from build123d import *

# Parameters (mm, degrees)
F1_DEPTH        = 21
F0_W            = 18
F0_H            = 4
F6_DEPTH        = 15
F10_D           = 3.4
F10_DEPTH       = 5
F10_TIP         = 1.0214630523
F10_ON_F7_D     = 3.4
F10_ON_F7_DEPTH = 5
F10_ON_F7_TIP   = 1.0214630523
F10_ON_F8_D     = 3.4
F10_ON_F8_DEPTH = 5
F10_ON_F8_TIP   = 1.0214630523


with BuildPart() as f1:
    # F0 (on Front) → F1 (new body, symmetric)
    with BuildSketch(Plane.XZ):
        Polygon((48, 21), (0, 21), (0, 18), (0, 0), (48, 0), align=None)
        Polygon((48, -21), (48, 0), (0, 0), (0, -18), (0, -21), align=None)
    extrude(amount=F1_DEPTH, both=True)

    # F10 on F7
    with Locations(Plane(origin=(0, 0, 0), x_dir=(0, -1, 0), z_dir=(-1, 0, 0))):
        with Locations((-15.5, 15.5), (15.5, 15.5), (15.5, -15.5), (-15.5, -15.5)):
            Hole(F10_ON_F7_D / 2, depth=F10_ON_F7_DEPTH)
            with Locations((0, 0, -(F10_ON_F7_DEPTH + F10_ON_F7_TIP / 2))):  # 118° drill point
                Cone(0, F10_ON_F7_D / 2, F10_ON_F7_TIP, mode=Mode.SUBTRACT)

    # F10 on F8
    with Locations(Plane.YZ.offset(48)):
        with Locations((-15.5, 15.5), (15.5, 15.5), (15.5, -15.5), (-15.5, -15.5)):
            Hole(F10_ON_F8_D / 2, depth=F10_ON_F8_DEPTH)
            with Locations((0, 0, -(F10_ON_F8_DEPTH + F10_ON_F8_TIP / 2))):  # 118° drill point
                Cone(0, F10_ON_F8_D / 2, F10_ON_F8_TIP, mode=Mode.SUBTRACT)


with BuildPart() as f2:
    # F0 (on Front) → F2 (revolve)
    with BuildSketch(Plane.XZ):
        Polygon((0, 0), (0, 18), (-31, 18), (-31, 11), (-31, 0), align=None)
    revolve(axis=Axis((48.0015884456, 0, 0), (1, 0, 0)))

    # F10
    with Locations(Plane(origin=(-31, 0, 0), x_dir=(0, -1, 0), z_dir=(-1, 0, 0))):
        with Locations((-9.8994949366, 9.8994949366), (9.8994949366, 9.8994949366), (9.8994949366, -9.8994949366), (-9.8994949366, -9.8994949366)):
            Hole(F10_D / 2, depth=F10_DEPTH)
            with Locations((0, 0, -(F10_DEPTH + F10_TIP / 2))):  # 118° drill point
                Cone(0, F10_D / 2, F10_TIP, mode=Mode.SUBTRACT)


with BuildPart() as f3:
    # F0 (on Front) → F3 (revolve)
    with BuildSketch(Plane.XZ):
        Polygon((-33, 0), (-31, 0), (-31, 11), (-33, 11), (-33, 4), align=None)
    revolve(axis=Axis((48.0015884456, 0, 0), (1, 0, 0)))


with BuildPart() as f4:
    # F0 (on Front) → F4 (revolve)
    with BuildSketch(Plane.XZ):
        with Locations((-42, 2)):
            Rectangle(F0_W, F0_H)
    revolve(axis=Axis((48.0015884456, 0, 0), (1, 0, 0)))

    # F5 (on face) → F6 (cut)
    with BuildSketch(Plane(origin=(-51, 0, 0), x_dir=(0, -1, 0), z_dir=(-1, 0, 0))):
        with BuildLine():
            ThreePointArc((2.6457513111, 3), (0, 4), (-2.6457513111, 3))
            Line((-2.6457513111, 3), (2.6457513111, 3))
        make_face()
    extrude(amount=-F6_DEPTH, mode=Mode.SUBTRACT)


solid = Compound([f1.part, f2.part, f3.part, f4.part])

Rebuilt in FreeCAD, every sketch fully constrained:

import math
import FreeCAD as App
import Part
import Sketcher
from FreeCAD import Vector
Q = App.Units.Quantity


def add_polygon(sketch, points):
    """Adds a closed chain of lines whose ends are joined by coincident constraints."""
    first, n = sketch.GeometryCount, len(points)
    for a, b in zip(points, points[1:] + points[:1]):
        sketch.addGeometry(Part.LineSegment(App.Vector(*a, 0), App.Vector(*b, 0)), False)
    for i in range(n):
        sketch.addConstraint(Sketcher.Constraint("Coincident", first + i, 2, first + (i + 1) % n, 1))

doc = App.newDocument("Part")
body = doc.addObject("PartDesign::Body", "Body")

sketch1 = body.newObject("Sketcher::SketchObject", "Sketch")
sketch1.AttachmentSupport = (doc.getObject("XZ_Plane"), [""])
sketch1.MapMode = "FlatFace"
add_polygon(sketch1, [(48, 21), (0, 21), (0, -21), (48, -21)])
sketch1.addConstraint(Sketcher.Constraint("Horizontal", 0))
sketch1.addConstraint(Sketcher.Constraint("Vertical", 1))
sketch1.addConstraint(Sketcher.Constraint("Horizontal", 2))
sketch1.addConstraint(Sketcher.Constraint("Vertical", 3))
sketch1.addConstraint(Sketcher.Constraint("Symmetric", 0, 2, 1, 2, -1, 1))
sketch1.addConstraint(Sketcher.Constraint("DistanceX", 0, 2, 0, 1, Q("48 mm")))
sketch1.addConstraint(Sketcher.Constraint("DistanceY", 1, 2, 1, 1, Q("42 mm")))
pad1 = body.newObject("PartDesign::Pad", "Pad")
pad1.Profile = sketch1
pad1.Length = 42
pad1.Midplane = True

sketch2 = body.newObject("Sketcher::SketchObject", "Sketch001")
sketch2.AttachmentSupport = (doc.getObject("YZ_Plane"), [""])
sketch2.MapMode = "FlatFace"
sketch2.addGeometry(Part.Circle(Vector(15.5, 15.5, 0), Vector(0, 0, 1), 1.7), False)
sketch2.addGeometry(Part.Circle(Vector(-15.5, 15.5, 0), Vector(0, 0, 1), 1.7), False)
sketch2.addGeometry(Part.Circle(Vector(-15.5, -15.5, 0), Vector(0, 0, 1), 1.7), False)
sketch2.addGeometry(Part.Circle(Vector(15.5, -15.5, 0), Vector(0, 0, 1), 1.7), False)
sketch2.addConstraint(Sketcher.Constraint("Equal", 0, 1))
sketch2.addConstraint(Sketcher.Constraint("Equal", 1, 2))
sketch2.addConstraint(Sketcher.Constraint("Equal", 2, 3))
sketch2.addConstraint(Sketcher.Constraint("Symmetric", 0, 3, 2, 3, -1, 1))
sketch2.addConstraint(Sketcher.Constraint("Symmetric", 1, 3, 3, 3, -1, 1))
sketch2.addConstraint(Sketcher.Constraint("Symmetric", 0, 3, 1, 3, -2))
sketch2.addConstraint(Sketcher.Constraint("Diameter", 0, Q("3.4 mm")))
sketch2.addConstraint(Sketcher.Constraint("DistanceX", 1, 3, 0, 3, Q("31 mm")))
sketch2.addConstraint(Sketcher.Constraint("DistanceY", 2, 3, 1, 3, Q("31 mm")))
doc.recompute()
hole = body.newObject("PartDesign::Hole", "Hole")
hole.Profile = sketch2
hole.ThreadType = "None"
hole.Diameter = 3.4
hole.DepthType = "Dimension"
hole.Depth = 5
hole.DrillPoint = "Angled"
hole.DrillPointAngle = 118
hole.Reversed = True

sketch3 = body.newObject("Sketcher::SketchObject", "Sketch002")
sketch3.AttachmentSupport = (doc.getObject("YZ_Plane"), [""])
sketch3.MapMode = "FlatFace"
sketch3.AttachmentOffset = App.Placement(Vector(0, 0, 48), App.Rotation())
sketch3.addGeometry(Part.Circle(Vector(-15.5, 15.5, 0), Vector(0, 0, 1), 1.7), False)
sketch3.addGeometry(Part.Circle(Vector(15.5, 15.5, 0), Vector(0, 0, 1), 1.7), False)
sketch3.addGeometry(Part.Circle(Vector(15.5, -15.5, 0), Vector(0, 0, 1), 1.7), False)
sketch3.addGeometry(Part.Circle(Vector(-15.5, -15.5, 0), Vector(0, 0, 1), 1.7), False)
sketch3.addConstraint(Sketcher.Constraint("Equal", 0, 1))
sketch3.addConstraint(Sketcher.Constraint("Equal", 1, 2))
sketch3.addConstraint(Sketcher.Constraint("Equal", 2, 3))
sketch3.addConstraint(Sketcher.Constraint("Symmetric", 0, 3, 2, 3, -1, 1))
sketch3.addConstraint(Sketcher.Constraint("Symmetric", 1, 3, 3, 3, -1, 1))
sketch3.addConstraint(Sketcher.Constraint("Symmetric", 0, 3, 1, 3, -2))
sketch3.addConstraint(Sketcher.Constraint("Diameter", 0, Q("3.4 mm")))
sketch3.addConstraint(Sketcher.Constraint("DistanceX", 0, 3, 1, 3, Q("31 mm")))
sketch3.addConstraint(Sketcher.Constraint("DistanceY", 2, 3, 1, 3, Q("31 mm")))
doc.recompute()
hole2 = body.newObject("PartDesign::Hole", "Hole001")
hole2.Profile = sketch3
hole2.ThreadType = "None"
hole2.Diameter = 3.4
hole2.DepthType = "Dimension"
hole2.Depth = 5
hole2.DrillPoint = "Angled"
hole2.DrillPointAngle = 118
body2 = doc.addObject("PartDesign::Body", "Body001")

sketch4 = body2.newObject("Sketcher::SketchObject", "Sketch003")
sketch4.AttachmentSupport = (doc.getObject("XZ_Plane001"), [""])
sketch4.MapMode = "FlatFace"
add_polygon(sketch4, [(0, 0), (0, 18), (-31, 18), (-31, 0)])
sketch4.addConstraint(Sketcher.Constraint("Vertical", 0))
sketch4.addConstraint(Sketcher.Constraint("Horizontal", 1))
sketch4.addConstraint(Sketcher.Constraint("Vertical", 2))
sketch4.addConstraint(Sketcher.Constraint("Horizontal", 3))
sketch4.addConstraint(Sketcher.Constraint("Coincident", 3, 2, -1, 1))
sketch4.addConstraint(Sketcher.Constraint("DistanceX", 1, 2, 1, 1, Q("31 mm")))
sketch4.addConstraint(Sketcher.Constraint("DistanceY", 0, 1, 0, 2, Q("18 mm")))
revolution = body2.newObject("PartDesign::Revolution", "Revolution")
revolution.Profile = sketch4
revolution.ReferenceAxis = (sketch4, ["H_Axis"])
revolution.Angle = 360

sketch5 = body2.newObject("Sketcher::SketchObject", "Sketch004")
sketch5.AttachmentSupport = (doc.getObject("YZ_Plane001"), [""])
sketch5.MapMode = "FlatFace"
sketch5.AttachmentOffset = App.Placement(Vector(0, 0, -31), App.Rotation())
sketch5.addGeometry(Part.Circle(Vector(9.9, 9.9, 0), Vector(0, 0, 1), 1.7), False)
sketch5.addGeometry(Part.Circle(Vector(-9.9, 9.9, 0), Vector(0, 0, 1), 1.7), False)
sketch5.addGeometry(Part.Circle(Vector(-9.9, -9.9, 0), Vector(0, 0, 1), 1.7), False)
sketch5.addGeometry(Part.Circle(Vector(9.9, -9.9, 0), Vector(0, 0, 1), 1.7), False)
sketch5.addConstraint(Sketcher.Constraint("Equal", 0, 1))
sketch5.addConstraint(Sketcher.Constraint("Equal", 1, 2))
sketch5.addConstraint(Sketcher.Constraint("Equal", 2, 3))
sketch5.addConstraint(Sketcher.Constraint("Symmetric", 0, 3, 2, 3, -1, 1))
sketch5.addConstraint(Sketcher.Constraint("Symmetric", 1, 3, 3, 3, -1, 1))
sketch5.addConstraint(Sketcher.Constraint("Symmetric", 0, 3, 1, 3, -2))
sketch5.addConstraint(Sketcher.Constraint("Diameter", 0, Q("3.4 mm")))
sketch5.addConstraint(Sketcher.Constraint("DistanceX", 1, 3, 0, 3, Q("19.79899 mm")))
sketch5.addConstraint(Sketcher.Constraint("DistanceY", 2, 3, 1, 3, Q("19.79899 mm")))
doc.recompute()
hole3 = body2.newObject("PartDesign::Hole", "Hole002")
hole3.Profile = sketch5
hole3.ThreadType = "None"
hole3.Diameter = 3.4
hole3.DepthType = "Dimension"
hole3.Depth = 5
hole3.DrillPoint = "Angled"
hole3.DrillPointAngle = 118
hole3.Reversed = True
body3 = doc.addObject("PartDesign::Body", "Body002")

sketch6 = body3.newObject("Sketcher::SketchObject", "Sketch005")
sketch6.AttachmentSupport = (doc.getObject("XZ_Plane002"), [""])
sketch6.MapMode = "FlatFace"
add_polygon(sketch6, [(-33, 0), (-31, 0), (-31, 11), (-33, 11)])
sketch6.addConstraint(Sketcher.Constraint("Horizontal", 0))
sketch6.addConstraint(Sketcher.Constraint("Vertical", 1))
sketch6.addConstraint(Sketcher.Constraint("Horizontal", 2))
sketch6.addConstraint(Sketcher.Constraint("Vertical", 3))
sketch6.addConstraint(Sketcher.Constraint("PointOnObject", 0, 2, -1))
sketch6.addConstraint(Sketcher.Constraint("DistanceX", 0, 1, 0, 2, Q("2 mm")))
sketch6.addConstraint(Sketcher.Constraint("DistanceY", 1, 1, 1, 2, Q("11 mm")))
sketch6.addConstraint(Sketcher.Constraint("DistanceX", 0, 2, -1, 1, Q("31 mm")))
revolution2 = body3.newObject("PartDesign::Revolution", "Revolution001")
revolution2.Profile = sketch6
revolution2.ReferenceAxis = (sketch6, ["H_Axis"])
revolution2.Angle = 360
body4 = doc.addObject("PartDesign::Body", "Body003")

sketch7 = body4.newObject("Sketcher::SketchObject", "Sketch006")
sketch7.AttachmentSupport = (doc.getObject("XZ_Plane003"), [""])
sketch7.MapMode = "FlatFace"
add_polygon(sketch7, [(-51, 4), (-51, 0), (-33, 0), (-33, 4)])
sketch7.addConstraint(Sketcher.Constraint("Vertical", 0))
sketch7.addConstraint(Sketcher.Constraint("Horizontal", 1))
sketch7.addConstraint(Sketcher.Constraint("Vertical", 2))
sketch7.addConstraint(Sketcher.Constraint("Horizontal", 3))
sketch7.addConstraint(Sketcher.Constraint("PointOnObject", 0, 2, -1))
sketch7.addConstraint(Sketcher.Constraint("DistanceX", 1, 1, 1, 2, Q("18 mm")))
sketch7.addConstraint(Sketcher.Constraint("DistanceY", 0, 2, 0, 1, Q("4 mm")))
sketch7.addConstraint(Sketcher.Constraint("DistanceX", 0, 2, -1, 1, Q("51 mm")))
revolution3 = body4.newObject("PartDesign::Revolution", "Revolution002")
revolution3.Profile = sketch7
revolution3.ReferenceAxis = (sketch7, ["H_Axis"])
revolution3.Angle = 360

sketch8 = body4.newObject("Sketcher::SketchObject", "Sketch007")
sketch8.AttachmentSupport = (doc.getObject("YZ_Plane003"), [""])
sketch8.MapMode = "FlatFace"
sketch8.AttachmentOffset = App.Placement(Vector(0, 0, -51), App.Rotation())
sketch8.addGeometry(Part.ArcOfCircle(Part.Circle(Vector(0, 0, 0), Vector(0, 0, 1), 4), math.radians(49), math.radians(131)), False)
sketch8.addGeometry(Part.LineSegment(Vector(2.6, 3, 0), Vector(-2.6, 3, 0)), False)
sketch8.addConstraint(Sketcher.Constraint("Coincident", 0, 1, 1, 1))
sketch8.addConstraint(Sketcher.Constraint("Coincident", 1, 2, 0, 2))
sketch8.addConstraint(Sketcher.Constraint("Horizontal", 1))
sketch8.addConstraint(Sketcher.Constraint("Coincident", 0, 3, -1, 1))
sketch8.addConstraint(Sketcher.Constraint("Radius", 0, Q("4 mm")))
sketch8.addConstraint(Sketcher.Constraint("DistanceY", -1, 1, 0, 1, Q("3 mm")))
pocket1 = body4.newObject("PartDesign::Pocket", "Pocket")
pocket1.Profile = sketch8
pocket1.Length = 15
pocket1.Reversed = True

doc.recompute()
